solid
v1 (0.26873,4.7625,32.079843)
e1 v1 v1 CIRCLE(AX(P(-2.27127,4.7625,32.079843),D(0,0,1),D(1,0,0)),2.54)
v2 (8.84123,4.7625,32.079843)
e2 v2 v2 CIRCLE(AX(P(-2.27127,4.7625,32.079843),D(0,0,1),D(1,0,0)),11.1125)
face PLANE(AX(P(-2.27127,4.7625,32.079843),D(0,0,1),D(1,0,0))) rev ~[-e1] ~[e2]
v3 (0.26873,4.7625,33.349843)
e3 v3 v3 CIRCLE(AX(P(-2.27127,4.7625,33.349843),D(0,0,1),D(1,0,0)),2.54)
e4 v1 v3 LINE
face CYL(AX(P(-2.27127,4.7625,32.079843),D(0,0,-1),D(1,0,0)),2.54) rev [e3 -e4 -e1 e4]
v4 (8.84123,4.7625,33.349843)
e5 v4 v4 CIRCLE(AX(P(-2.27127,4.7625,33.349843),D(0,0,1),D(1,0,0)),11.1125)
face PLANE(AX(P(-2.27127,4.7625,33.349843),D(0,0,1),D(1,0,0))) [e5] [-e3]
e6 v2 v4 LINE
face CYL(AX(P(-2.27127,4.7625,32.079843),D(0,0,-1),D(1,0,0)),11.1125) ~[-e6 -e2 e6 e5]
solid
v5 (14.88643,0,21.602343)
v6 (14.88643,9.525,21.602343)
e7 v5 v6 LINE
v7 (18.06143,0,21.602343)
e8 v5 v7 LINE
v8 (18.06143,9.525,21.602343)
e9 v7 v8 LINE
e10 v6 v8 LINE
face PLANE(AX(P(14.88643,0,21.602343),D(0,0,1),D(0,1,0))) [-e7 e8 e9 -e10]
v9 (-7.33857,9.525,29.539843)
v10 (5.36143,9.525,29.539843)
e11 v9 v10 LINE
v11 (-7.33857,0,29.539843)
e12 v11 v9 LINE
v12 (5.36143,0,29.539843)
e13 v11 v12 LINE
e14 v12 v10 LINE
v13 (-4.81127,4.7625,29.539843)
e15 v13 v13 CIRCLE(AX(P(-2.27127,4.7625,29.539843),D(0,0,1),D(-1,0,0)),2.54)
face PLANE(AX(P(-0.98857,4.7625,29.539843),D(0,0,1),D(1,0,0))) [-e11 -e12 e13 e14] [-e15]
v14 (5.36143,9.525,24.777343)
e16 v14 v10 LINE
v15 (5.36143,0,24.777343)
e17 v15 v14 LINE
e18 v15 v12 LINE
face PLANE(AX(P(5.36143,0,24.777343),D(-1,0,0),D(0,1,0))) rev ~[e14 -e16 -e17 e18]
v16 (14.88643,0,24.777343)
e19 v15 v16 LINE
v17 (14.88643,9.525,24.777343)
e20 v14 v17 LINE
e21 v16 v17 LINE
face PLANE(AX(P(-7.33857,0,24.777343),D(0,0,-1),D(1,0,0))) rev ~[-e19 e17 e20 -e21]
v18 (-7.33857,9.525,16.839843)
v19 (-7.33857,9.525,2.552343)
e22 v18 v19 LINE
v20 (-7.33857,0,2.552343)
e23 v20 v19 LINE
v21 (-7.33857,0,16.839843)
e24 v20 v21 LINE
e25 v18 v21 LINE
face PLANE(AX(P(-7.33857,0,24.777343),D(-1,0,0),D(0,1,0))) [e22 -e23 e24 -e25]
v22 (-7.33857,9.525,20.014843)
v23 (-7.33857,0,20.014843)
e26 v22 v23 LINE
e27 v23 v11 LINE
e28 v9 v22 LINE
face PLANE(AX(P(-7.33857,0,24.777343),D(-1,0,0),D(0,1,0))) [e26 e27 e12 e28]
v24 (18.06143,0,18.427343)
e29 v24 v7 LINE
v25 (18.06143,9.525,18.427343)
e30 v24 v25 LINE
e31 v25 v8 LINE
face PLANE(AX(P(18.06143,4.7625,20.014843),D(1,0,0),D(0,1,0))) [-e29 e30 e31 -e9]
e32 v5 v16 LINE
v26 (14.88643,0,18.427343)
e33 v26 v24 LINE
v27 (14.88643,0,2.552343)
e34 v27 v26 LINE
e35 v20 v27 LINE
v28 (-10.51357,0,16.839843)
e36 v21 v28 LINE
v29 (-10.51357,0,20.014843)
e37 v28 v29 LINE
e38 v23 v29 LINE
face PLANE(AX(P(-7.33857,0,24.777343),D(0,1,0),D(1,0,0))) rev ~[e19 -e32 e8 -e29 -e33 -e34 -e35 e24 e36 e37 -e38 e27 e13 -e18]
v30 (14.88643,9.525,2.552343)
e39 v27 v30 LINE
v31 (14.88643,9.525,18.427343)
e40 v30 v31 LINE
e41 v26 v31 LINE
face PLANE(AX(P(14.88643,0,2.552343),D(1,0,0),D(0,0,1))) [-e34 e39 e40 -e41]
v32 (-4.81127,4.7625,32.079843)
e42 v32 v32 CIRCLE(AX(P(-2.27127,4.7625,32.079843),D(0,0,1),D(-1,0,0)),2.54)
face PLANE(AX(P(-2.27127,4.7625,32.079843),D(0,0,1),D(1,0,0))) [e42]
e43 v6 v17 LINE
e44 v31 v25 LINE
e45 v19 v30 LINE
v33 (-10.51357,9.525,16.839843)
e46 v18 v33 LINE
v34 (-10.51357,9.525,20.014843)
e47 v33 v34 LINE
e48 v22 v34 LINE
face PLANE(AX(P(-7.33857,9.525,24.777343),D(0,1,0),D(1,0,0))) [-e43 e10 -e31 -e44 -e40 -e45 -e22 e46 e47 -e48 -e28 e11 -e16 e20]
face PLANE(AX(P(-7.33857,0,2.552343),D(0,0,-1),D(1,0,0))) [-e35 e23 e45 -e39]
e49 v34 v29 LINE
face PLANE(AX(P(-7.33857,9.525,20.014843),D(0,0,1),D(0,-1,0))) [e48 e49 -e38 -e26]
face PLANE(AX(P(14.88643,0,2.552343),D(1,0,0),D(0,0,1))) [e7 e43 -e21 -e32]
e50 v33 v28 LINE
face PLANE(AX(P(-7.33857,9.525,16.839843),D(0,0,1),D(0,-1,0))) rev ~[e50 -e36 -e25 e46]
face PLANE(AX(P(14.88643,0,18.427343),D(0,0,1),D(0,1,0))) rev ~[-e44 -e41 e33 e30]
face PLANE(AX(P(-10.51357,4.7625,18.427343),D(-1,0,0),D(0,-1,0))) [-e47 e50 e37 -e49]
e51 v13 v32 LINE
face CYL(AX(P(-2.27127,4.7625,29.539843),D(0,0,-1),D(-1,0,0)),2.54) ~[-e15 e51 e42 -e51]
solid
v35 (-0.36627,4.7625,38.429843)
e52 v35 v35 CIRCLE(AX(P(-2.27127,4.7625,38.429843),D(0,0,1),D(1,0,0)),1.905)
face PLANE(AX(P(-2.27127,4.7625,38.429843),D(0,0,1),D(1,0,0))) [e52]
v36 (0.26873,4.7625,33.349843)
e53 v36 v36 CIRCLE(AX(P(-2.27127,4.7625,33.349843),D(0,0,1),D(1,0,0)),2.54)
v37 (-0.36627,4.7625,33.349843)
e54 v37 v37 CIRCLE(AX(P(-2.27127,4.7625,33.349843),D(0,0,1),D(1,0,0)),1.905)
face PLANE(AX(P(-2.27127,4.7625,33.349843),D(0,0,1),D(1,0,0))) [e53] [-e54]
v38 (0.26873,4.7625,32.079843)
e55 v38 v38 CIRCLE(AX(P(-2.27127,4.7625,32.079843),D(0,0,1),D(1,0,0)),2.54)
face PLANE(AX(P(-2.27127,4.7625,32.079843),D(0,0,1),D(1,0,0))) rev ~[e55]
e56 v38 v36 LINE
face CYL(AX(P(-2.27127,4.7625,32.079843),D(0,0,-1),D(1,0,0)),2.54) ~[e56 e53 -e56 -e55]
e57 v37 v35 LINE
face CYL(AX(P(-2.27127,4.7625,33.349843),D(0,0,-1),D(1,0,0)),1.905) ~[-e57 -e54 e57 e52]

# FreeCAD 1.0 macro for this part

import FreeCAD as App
import Part
import Sketcher

V = App.Vector
Q = App.Units.Quantity

doc = App.newDocument("Part")
body = doc.addObject("PartDesign::Body", "Body")

sketch1 = doc.addObject("Sketcher::SketchObject", "Sketch")
body.addObject(sketch1)
sketch1.AttachmentSupport = (doc.XZ_Plane, [""])
sketch1.MapMode = "FlatFace"
sketch1.addGeometry(Part.LineSegment(V(-7.33857, 24.777343, 0), V(-7.33857, 2.552343, 0)), False)
sketch1.addGeometry(Part.LineSegment(V(-7.33857, 2.552343, 0), V(14.88643, 2.552343, 0)), False)
sketch1.addGeometry(Part.LineSegment(V(14.88643, 2.552343, 0), V(14.88643, 24.777343, 0)), False)
sketch1.addGeometry(Part.LineSegment(V(14.88643, 24.777343, 0), V(-7.33857, 24.777343, 0)), False)
sketch1.addConstraint(Sketcher.Constraint("Coincident", 0, 2, 1, 1))
sketch1.addConstraint(Sketcher.Constraint("Coincident", 1, 2, 2, 1))
sketch1.addConstraint(Sketcher.Constraint("Coincident", 2, 2, 3, 1))
sketch1.addConstraint(Sketcher.Constraint("Coincident", 3, 2, 0, 1))
sketch1.addConstraint(Sketcher.Constraint("Vertical", 0))
sketch1.addConstraint(Sketcher.Constraint("Horizontal", 1))
sketch1.addConstraint(Sketcher.Constraint("Vertical", 2))
sketch1.addConstraint(Sketcher.Constraint("Horizontal", 3))
sketch1.addConstraint(Sketcher.Constraint("Equal", 3, 0))
sketch1.addConstraint(Sketcher.Constraint("DistanceX", 1, 1, 1, 2, Q("0.875 in")))
sketch1.addConstraint(Sketcher.Constraint("DistanceX", 0, 2, -1, 1, 7.33857))
sketch1.addConstraint(Sketcher.Constraint("DistanceY", -1, 1, 0, 2, 2.552343))
pad1 = doc.addObject("PartDesign::Pad", "Pad")
body.addObject(pad1)
pad1.Profile = sketch1
pad1.Length = Q("0.375 in")
pad1.Reversed = True

sketch2 = doc.addObject("Sketcher::SketchObject", "Sketch001")
body.addObject(sketch2)
sketch2.AttachmentSupport = (doc.XY_Plane, [""])
sketch2.MapMode = "FlatFace"
sketch2.AttachmentOffset = App.Placement(V(0, 0, 24.777343), App.Rotation())
sketch2.addGeometry(Part.LineSegment(V(-7.33857, 9.525, 0), V(-7.33857, 0, 0)), False)
sketch2.addGeometry(Part.LineSegment(V(-7.33857, 0, 0), V(5.36143, 0, 0)), False)
sketch2.addGeometry(Part.LineSegment(V(5.36143, 0, 0), V(5.36143, 9.525, 0)), False)
sketch2.addGeometry(Part.LineSegment(V(5.36143, 9.525, 0), V(-7.33857, 9.525, 0)), False)
sketch2.addConstraint(Sketcher.Constraint("Coincident", 0, 2, 1, 1))
sketch2.addConstraint(Sketcher.Constraint("Coincident", 1, 2, 2, 1))
sketch2.addConstraint(Sketcher.Constraint("Coincident", 2, 2, 3, 1))
sketch2.addConstraint(Sketcher.Constraint("Coincident", 3, 2, 0, 1))
sketch2.addConstraint(Sketcher.Constraint("Vertical", 0))
sketch2.addConstraint(Sketcher.Constraint("Horizontal", 1))
sketch2.addConstraint(Sketcher.Constraint("Vertical", 2))
sketch2.addConstraint(Sketcher.Constraint("Horizontal", 3))
sketch2.addConstraint(Sketcher.Constraint("PointOnObject", 0, 2, -1))
sketch2.addConstraint(Sketcher.Constraint("DistanceX", 1, 1, 1, 2, Q("0.5 in")))
sketch2.addConstraint(Sketcher.Constraint("DistanceY", 0, 2, 0, 1, Q("0.375 in")))
sketch2.addConstraint(Sketcher.Constraint("DistanceX", 0, 2, -1, 1, 7.33857))
pad2 = doc.addObject("PartDesign::Pad", "Pad001")
body.addObject(pad2)
pad2.Profile = sketch2
pad2.Length = Q("0.1875 in")

sketch3 = doc.addObject("Sketcher::SketchObject", "Sketch002")
body.addObject(sketch3)
sketch3.AttachmentSupport = (doc.YZ_Plane, [""])
sketch3.MapMode = "FlatFace"
sketch3.AttachmentOffset = App.Placement(V(0, 0, 14.88643), App.Rotation())
sketch3.addGeometry(Part.LineSegment(V(0, 21.602343, 0), V(0, 18.427343, 0)), False)
sketch3.addGeometry(Part.LineSegment(V(0, 18.427343, 0), V(9.525, 18.427343, 0)), False)
sketch3.addGeometry(Part.LineSegment(V(9.525, 18.427343, 0), V(9.525, 21.602343, 0)), False)
sketch3.addGeometry(Part.LineSegment(V(9.525, 21.602343, 0), V(0, 21.602343, 0)), False)
sketch3.addConstraint(Sketcher.Constraint("Coincident", 0, 2, 1, 1))
sketch3.addConstraint(Sketcher.Constraint("Coincident", 1, 2, 2, 1))
sketch3.addConstraint(Sketcher.Constraint("Coincident", 2, 2, 3, 1))
sketch3.addConstraint(Sketcher.Constraint("Coincident", 3, 2, 0, 1))
sketch3.addConstraint(Sketcher.Constraint("Vertical", 0))
sketch3.addConstraint(Sketcher.Constraint("Horizontal", 1))
sketch3.addConstraint(Sketcher.Constraint("Vertical", 2))
sketch3.addConstraint(Sketcher.Constraint("Horizontal", 3))
sketch3.addConstraint(Sketcher.Constraint("PointOnObject", 0, 2, -2))
sketch3.addConstraint(Sketcher.Constraint("DistanceX", 1, 1, 1, 2, Q("0.375 in")))
sketch3.addConstraint(Sketcher.Constraint("DistanceY", 0, 2, 0, 1, Q("0.125 in")))
sketch3.addConstraint(Sketcher.Constraint("DistanceY", -1, 1, 0, 2, 18.427343))
pad3 = doc.addObject("PartDesign::Pad", "Pad002")
body.addObject(pad3)
pad3.Profile = sketch3
pad3.Length = Q("0.125 in")

sketch4 = doc.addObject("Sketcher::SketchObject", "Sketch003")
body.addObject(sketch4)
sketch4.AttachmentSupport = (doc.YZ_Plane, [""])
sketch4.MapMode = "FlatFace"
sketch4.AttachmentOffset = App.Placement(V(0, 0, -7.33857), App.Rotation())
sketch4.addGeometry(Part.LineSegment(V(9.525, 20.014843, 0), V(9.525, 16.839843, 0)), False)
sketch4.addGeometry(Part.LineSegment(V(9.525, 16.839843, 0), V(0, 16.839843, 0)), False)
sketch4.addGeometry(Part.LineSegment(V(0, 16.839843, 0), V(0, 20.014843, 0)), False)
sketch4.addGeometry(Part.LineSegment(V(0, 20.014843, 0), V(9.525, 20.014843, 0)), False)
sketch4.addConstraint(Sketcher.Constraint("Coincident", 0, 2, 1, 1))
sketch4.addConstraint(Sketcher.Constraint("Coincident", 1, 2, 2, 1))
sketch4.addConstraint(Sketcher.Constraint("Coincident", 2, 2, 3, 1))
sketch4.addConstraint(Sketcher.Constraint("Coincident", 3, 2, 0, 1))
sketch4.addConstraint(Sketcher.Constraint("Vertical", 0))
sketch4.addConstraint(Sketcher.Constraint("Horizontal", 1))
sketch4.addConstraint(Sketcher.Constraint("Vertical", 2))
sketch4.addConstraint(Sketcher.Constraint("Horizontal", 3))
sketch4.addConstraint(Sketcher.Constraint("PointOnObject", 1, 2, -2))
sketch4.addConstraint(Sketcher.Constraint("DistanceX", 1, 2, 1, 1, Q("0.375 in")))
sketch4.addConstraint(Sketcher.Constraint("DistanceY", 0, 2, 0, 1, Q("0.125 in")))
sketch4.addConstraint(Sketcher.Constraint("DistanceY", -1, 1, 0, 2, 16.839843))
pad4 = doc.addObject("PartDesign::Pad", "Pad003")
body.addObject(pad4)
pad4.Profile = sketch4
pad4.Length = Q("0.125 in")
pad4.Reversed = True

sketch5 = doc.addObject("Sketcher::SketchObject", "Sketch004")
body.addObject(sketch5)
sketch5.AttachmentSupport = (doc.XY_Plane, [""])
sketch5.MapMode = "FlatFace"
sketch5.AttachmentOffset = App.Placement(V(0, 0, 29.539843), App.Rotation())
sketch5.addGeometry(Part.Circle(V(-2.27127, 4.7625, 0), V(0, 0, 1), 2.54), False)
sketch5.addConstraint(Sketcher.Constraint("Diameter", 0, Q("0.2 in")))
sketch5.addConstraint(Sketcher.Constraint("DistanceY", -1, 1, 0, 3, Q("0.1875 in")))
sketch5.addConstraint(Sketcher.Constraint("DistanceX", 0, 3, -1, 1, 2.27127))
pad5 = doc.addObject("PartDesign::Pad", "Pad004")
body.addObject(pad5)
pad5.Profile = sketch5
pad5.Length = Q("0.1 in")
body2 = doc.addObject("PartDesign::Body", "Body001")

sketch6 = doc.addObject("Sketcher::SketchObject", "Sketch005")
body2.addObject(sketch6)
sketch6.AttachmentSupport = (doc.getObject("XY_Plane001"), [""])
sketch6.MapMode = "FlatFace"
sketch6.AttachmentOffset = App.Placement(V(0, 0, 32.079843), App.Rotation())
sketch6.addGeometry(Part.Circle(V(-2.27127, 4.7625, 0), V(0, 0, 1), 11.1125), False)
sketch6.addGeometry(Part.Circle(V(-2.27127, 4.7625, 0), V(0, 0, 1), 2.54), False)
sketch6.addConstraint(Sketcher.Constraint("Coincident", 1, 3, 0, 3))
sketch6.addConstraint(Sketcher.Constraint("Diameter", 1, Q("0.2 in")))
sketch6.addConstraint(Sketcher.Constraint("Diameter", 0, Q("0.875 in")))
sketch6.addConstraint(Sketcher.Constraint("DistanceY", -1, 1, 0, 3, Q("0.1875 in")))
sketch6.addConstraint(Sketcher.Constraint("DistanceX", 0, 3, -1, 1, 2.27127))
pad6 = doc.addObject("PartDesign::Pad", "Pad005")
body2.addObject(pad6)
pad6.Profile = sketch6
pad6.Length = Q("0.05 in")
body3 = doc.addObject("PartDesign::Body", "Body002")

sketch7 = doc.addObject("Sketcher::SketchObject", "Sketch006")
body3.addObject(sketch7)
sketch7.AttachmentSupport = (doc.getObject("XY_Plane002"), [""])
sketch7.MapMode = "FlatFace"
sketch7.AttachmentOffset = App.Placement(V(0, 0, 32.079843), App.Rotation())
sketch7.addGeometry(Part.Circle(V(-2.27127, 4.7625, 0), V(0, 0, 1), 2.54), False)
sketch7.addConstraint(Sketcher.Constraint("Diameter", 0, Q("0.2 in")))
sketch7.addConstraint(Sketcher.Constraint("DistanceY", -1, 1, 0, 3, Q("0.1875 in")))
sketch7.addConstraint(Sketcher.Constraint("DistanceX", 0, 3, -1, 1, 2.27127))
pad7 = doc.addObject("PartDesign::Pad", "Pad006")
body3.addObject(pad7)
pad7.Profile = sketch7
pad7.Length = Q("0.05 in")

sketch8 = doc.addObject("Sketcher::SketchObject", "Sketch007")
body3.addObject(sketch8)
sketch8.AttachmentSupport = (doc.getObject("XY_Plane002"), [""])
sketch8.MapMode = "FlatFace"
sketch8.AttachmentOffset = App.Placement(V(0, 0, 33.349843), App.Rotation())
sketch8.addGeometry(Part.Circle(V(-2.27127, 4.7625, 0), V(0, 0, 1), 1.905), False)
sketch8.addConstraint(Sketcher.Constraint("Diameter", 0, Q("0.15 in")))
sketch8.addConstraint(Sketcher.Constraint("DistanceY", -1, 1, 0, 3, Q("0.1875 in")))
sketch8.addConstraint(Sketcher.Constraint("DistanceX", 0, 3, -1, 1, 2.27127))
pad8 = doc.addObject("PartDesign::Pad", "Pad007")
body3.addObject(pad8)
pad8.Profile = sketch8
pad8.Length = Q("0.2 in")

doc.recompute()
